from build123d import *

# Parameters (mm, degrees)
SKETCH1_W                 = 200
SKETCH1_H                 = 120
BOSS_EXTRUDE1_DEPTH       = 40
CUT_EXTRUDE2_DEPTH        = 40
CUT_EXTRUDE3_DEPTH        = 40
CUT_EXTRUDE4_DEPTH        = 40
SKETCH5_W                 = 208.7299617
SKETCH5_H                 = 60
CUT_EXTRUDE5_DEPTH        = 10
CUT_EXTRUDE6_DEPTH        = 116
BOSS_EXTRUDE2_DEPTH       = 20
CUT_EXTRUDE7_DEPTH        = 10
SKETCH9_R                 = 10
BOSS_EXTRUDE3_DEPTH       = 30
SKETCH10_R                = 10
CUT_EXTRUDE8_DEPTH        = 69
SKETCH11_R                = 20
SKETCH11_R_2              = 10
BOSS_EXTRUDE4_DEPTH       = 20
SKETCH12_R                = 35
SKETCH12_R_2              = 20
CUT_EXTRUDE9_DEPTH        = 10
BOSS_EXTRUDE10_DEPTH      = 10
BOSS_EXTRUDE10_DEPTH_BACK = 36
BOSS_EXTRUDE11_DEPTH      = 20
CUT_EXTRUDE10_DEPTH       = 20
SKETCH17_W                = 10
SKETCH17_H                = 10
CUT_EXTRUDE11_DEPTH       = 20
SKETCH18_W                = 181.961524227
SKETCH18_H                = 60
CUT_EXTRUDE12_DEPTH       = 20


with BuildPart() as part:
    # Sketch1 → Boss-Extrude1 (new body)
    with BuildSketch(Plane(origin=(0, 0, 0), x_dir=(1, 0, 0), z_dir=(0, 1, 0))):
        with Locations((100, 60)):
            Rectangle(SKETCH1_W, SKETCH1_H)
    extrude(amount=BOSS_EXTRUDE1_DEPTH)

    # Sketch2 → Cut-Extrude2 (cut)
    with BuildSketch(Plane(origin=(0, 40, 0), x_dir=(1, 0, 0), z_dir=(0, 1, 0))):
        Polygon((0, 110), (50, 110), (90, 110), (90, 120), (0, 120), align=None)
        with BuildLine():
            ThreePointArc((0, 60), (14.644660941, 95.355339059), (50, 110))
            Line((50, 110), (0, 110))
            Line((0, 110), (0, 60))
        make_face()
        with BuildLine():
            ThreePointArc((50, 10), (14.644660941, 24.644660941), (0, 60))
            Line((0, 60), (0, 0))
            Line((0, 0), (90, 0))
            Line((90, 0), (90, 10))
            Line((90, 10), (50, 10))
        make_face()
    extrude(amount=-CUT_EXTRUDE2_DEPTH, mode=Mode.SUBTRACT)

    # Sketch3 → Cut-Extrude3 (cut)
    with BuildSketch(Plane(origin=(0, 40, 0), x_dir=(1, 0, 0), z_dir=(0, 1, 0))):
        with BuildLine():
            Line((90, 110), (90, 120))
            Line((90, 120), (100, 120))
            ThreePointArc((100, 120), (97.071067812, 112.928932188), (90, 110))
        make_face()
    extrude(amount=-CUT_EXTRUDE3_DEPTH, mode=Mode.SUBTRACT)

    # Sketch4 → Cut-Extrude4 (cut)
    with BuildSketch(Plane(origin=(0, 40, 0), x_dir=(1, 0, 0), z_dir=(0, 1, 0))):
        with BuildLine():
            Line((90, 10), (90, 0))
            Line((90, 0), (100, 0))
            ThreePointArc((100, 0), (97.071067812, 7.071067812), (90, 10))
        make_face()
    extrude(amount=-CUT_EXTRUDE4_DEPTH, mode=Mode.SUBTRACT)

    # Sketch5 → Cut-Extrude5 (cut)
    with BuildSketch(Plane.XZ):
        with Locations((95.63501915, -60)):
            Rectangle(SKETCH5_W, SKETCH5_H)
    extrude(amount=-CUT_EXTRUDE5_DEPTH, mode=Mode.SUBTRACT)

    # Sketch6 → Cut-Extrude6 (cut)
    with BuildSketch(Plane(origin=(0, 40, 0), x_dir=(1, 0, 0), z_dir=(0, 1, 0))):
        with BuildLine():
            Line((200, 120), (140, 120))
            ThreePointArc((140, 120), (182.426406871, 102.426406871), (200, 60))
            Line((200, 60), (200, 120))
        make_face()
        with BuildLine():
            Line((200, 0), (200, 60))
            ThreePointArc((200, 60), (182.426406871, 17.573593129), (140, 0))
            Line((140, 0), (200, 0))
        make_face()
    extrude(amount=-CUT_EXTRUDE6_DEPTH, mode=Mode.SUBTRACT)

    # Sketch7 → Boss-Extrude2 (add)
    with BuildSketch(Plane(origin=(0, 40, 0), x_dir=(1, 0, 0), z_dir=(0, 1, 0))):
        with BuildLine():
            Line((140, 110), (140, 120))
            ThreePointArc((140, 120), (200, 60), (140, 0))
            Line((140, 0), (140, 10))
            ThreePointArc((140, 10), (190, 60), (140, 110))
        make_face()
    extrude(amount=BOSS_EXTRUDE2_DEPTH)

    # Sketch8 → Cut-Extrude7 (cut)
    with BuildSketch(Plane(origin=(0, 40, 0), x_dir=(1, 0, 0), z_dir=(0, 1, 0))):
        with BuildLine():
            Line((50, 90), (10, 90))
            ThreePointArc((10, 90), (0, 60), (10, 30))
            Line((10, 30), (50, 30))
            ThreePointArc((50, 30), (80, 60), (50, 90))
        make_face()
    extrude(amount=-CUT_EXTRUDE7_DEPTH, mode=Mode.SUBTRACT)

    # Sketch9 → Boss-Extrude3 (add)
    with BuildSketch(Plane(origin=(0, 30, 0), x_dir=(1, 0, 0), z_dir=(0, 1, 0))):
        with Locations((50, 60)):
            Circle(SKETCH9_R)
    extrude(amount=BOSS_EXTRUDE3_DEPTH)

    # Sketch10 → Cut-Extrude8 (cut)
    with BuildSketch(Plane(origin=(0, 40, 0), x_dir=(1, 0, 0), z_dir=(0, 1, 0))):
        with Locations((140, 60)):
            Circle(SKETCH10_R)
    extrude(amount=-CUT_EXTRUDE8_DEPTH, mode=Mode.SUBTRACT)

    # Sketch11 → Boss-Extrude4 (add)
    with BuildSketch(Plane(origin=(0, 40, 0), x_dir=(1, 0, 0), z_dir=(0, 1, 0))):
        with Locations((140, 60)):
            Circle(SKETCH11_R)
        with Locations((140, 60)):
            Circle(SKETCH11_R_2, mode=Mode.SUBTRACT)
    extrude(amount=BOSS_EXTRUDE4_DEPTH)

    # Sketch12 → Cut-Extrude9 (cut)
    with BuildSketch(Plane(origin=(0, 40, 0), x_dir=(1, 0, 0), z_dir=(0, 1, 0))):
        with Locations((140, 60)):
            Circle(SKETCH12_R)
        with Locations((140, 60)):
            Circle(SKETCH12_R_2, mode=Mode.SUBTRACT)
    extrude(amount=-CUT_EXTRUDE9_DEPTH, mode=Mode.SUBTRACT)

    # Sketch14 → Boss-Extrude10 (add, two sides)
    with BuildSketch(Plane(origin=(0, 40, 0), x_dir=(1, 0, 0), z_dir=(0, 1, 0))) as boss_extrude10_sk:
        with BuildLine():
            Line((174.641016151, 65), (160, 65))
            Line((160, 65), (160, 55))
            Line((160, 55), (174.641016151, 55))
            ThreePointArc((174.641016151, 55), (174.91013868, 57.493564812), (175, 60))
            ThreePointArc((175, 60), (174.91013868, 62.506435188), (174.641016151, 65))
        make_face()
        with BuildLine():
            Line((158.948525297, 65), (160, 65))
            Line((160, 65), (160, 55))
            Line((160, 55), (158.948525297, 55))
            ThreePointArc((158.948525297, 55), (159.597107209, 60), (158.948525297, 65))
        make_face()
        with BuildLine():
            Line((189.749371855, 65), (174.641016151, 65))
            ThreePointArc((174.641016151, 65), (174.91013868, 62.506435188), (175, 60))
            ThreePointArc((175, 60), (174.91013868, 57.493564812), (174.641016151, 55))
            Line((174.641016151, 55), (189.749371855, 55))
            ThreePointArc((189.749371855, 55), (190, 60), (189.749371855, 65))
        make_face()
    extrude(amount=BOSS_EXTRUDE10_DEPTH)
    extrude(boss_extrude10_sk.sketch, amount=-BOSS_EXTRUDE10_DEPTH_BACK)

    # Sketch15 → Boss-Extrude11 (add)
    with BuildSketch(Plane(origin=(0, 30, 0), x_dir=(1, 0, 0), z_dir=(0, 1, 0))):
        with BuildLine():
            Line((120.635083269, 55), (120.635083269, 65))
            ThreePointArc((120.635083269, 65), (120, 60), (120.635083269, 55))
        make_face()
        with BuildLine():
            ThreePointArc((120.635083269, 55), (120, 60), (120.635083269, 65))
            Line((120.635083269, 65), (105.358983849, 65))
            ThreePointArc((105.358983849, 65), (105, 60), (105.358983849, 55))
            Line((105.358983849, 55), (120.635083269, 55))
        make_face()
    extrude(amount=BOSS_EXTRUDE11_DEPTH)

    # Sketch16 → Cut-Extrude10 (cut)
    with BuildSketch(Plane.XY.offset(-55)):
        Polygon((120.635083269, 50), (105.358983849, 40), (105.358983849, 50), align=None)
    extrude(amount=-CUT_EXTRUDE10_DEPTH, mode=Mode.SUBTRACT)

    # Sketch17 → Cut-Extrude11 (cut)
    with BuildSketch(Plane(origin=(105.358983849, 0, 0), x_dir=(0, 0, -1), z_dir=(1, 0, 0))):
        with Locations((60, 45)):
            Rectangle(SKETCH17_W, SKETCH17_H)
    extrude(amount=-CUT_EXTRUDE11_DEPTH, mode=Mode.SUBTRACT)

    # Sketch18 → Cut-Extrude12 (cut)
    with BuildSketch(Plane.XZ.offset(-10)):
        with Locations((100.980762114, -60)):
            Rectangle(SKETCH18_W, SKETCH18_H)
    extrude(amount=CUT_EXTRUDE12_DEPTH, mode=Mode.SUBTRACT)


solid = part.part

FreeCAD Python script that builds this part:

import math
import FreeCAD as App
import Part
import Sketcher

V = App.Vector
Q = App.Units.Quantity

doc = App.newDocument("Part")
body = doc.addObject("PartDesign::Body", "Body")

# Sketch on XZ plane
sketch1 = body.newObject("Sketcher::SketchObject", "Sketch")
sketch1.AttachmentSupport = (doc.getObject("XZ_Plane"), [""])
sketch1.MapMode = "FlatFace"
sketch1.addGeometry([
    Part.LineSegment(V(0, -120, 0), V(0, 0, 0)),
    Part.LineSegment(V(0, 0, 0), V(200, 0, 0)),
    Part.LineSegment(V(200, 0, 0), V(200, -120, 0)),
    Part.LineSegment(V(200, -120, 0), V(0, -120, 0)),
], False)
sketch1.addConstraint([
    Sketcher.Constraint("Coincident", 0, 2, 1, 1),
    Sketcher.Constraint("Coincident", 1, 2, 2, 1),
    Sketcher.Constraint("Coincident", 2, 2, 3, 1),
    Sketcher.Constraint("Coincident", 3, 2, 0, 1),
    Sketcher.Constraint("Vertical", 0),
    Sketcher.Constraint("Horizontal", 1),
    Sketcher.Constraint("Vertical", 2),
    Sketcher.Constraint("Horizontal", 3),
    Sketcher.Constraint("Coincident", 0, 2, -1, 1),
    Sketcher.Constraint("DistanceX", 1, 1, 1, 2, Q("200 mm")),
    Sketcher.Constraint("DistanceY", 0, 1, 0, 2, Q("120 mm")),
])
pad1 = body.newObject("PartDesign::Pad", "Pad")
pad1.Profile = sketch1
pad1.Length = 40
pad1.Reversed = True

# Sketch on XZ plane
sketch2 = body.newObject("Sketcher::SketchObject", "Sketch001")
sketch2.AttachmentSupport = (doc.getObject("XZ_Plane"), [""])
sketch2.MapMode = "FlatFace"
sketch2.AttachmentOffset = App.Placement(V(0, 0, -40), App.Rotation())
sketch2.addGeometry([
    Part.LineSegment(V(50, -110, 0), V(90, -110, 0)),  # 0
    Part.LineSegment(V(90, -110, 0), V(90, -120, 0)),  # 1
    Part.LineSegment(V(90, -120, 0), V(0, -120, 0)),  # 2
    Part.LineSegment(V(0, -120, 0), V(0, -60, 0)),  # 3
    Part.ArcOfCircle(Part.Circle(V(50, -60, 0), V(0, 0, 1), 50), math.radians(-180), math.radians(-90)),  # 4
    Part.ArcOfCircle(Part.Circle(V(50, -60, 0), V(0, 0, 1), 50), math.radians(90), math.radians(180)),  # 5
    Part.LineSegment(V(0, -60, 0), V(0, 0, 0)),  # 6
    Part.LineSegment(V(0, 0, 0), V(90, 0, 0)),  # 7
    Part.LineSegment(V(90, 0, 0), V(90, -10, 0)),  # 8
    Part.LineSegment(V(90, -10, 0), V(50, -10, 0)),  # 9
], False)
sketch2.addConstraint([
    Sketcher.Constraint("Coincident", 0, 2, 1, 1),
    Sketcher.Constraint("Coincident", 1, 2, 2, 1),
    Sketcher.Constraint("Coincident", 2, 2, 3, 1),
    Sketcher.Constraint("Tangent", 3, 2, 4, 1),
    Sketcher.Constraint("Tangent", 4, 2, 0, 1),
    Sketcher.Constraint("Tangent", 5, 2, 6, 1),
    Sketcher.Constraint("Coincident", 6, 2, 7, 1),
    Sketcher.Constraint("Coincident", 7, 2, 8, 1),
    Sketcher.Constraint("Coincident", 8, 2, 9, 1),
    Sketcher.Constraint("Tangent", 9, 2, 5, 1),
    Sketcher.Constraint("Horizontal", 0),
    Sketcher.Constraint("Vertical", 1),
    Sketcher.Constraint("Horizontal", 2),
    Sketcher.Constraint("Vertical", 3),
    Sketcher.Constraint("Vertical", 6),
    Sketcher.Constraint("Horizontal", 7),
    Sketcher.Constraint("Vertical", 8),
    Sketcher.Constraint("Horizontal", 9),
    Sketcher.Constraint("Coincident", 6, 2, -1, 1),
    Sketcher.Constraint("Coincident", 5, 3, 4, 3),
    Sketcher.Constraint("Equal", 4, 5),
    Sketcher.Constraint("Vertical", 1, 2, 7, 2),
    Sketcher.Constraint("Equal", 3, 6),
    Sketcher.Constraint("Radius", 4, Q("50 mm")),
    Sketcher.Constraint("DistanceX", 0, 1, 0, 2, Q("40 mm")),
    Sketcher.Constraint("DistanceY", 1, 2, 1, 1, Q("10 mm")),
])
pocket1 = body.newObject("PartDesign::Pocket", "Pocket")
pocket1.Profile = sketch2
pocket1.Length = 40
pocket1.Reversed = True

# Sketch on XZ plane
sketch3 = body.newObject("Sketcher::SketchObject", "Sketch002")
sketch3.AttachmentSupport = (doc.getObject("XZ_Plane"), [""])
sketch3.MapMode = "FlatFace"
sketch3.AttachmentOffset = App.Placement(V(0, 0, -40), App.Rotation())
sketch3.addGeometry([
    Part.LineSegment(V(90, -120, 0), V(90, -110, 0)),
    Part.ArcOfCircle(Part.Circle(V(90, -120, 0), V(0, 0, 1), 10), math.radians(0), math.radians(90)),
    Part.LineSegment(V(100, -120, 0), V(90, -120, 0)),
], False)
sketch3.addConstraint([
    Sketcher.Constraint("Coincident", 0, 2, 1, 2),
    Sketcher.Constraint("Coincident", 1, 1, 2, 1),
    Sketcher.Constraint("Coincident", 2, 2, 0, 1),
    Sketcher.Constraint("Vertical", 0),
    Sketcher.Constraint("Horizontal", 2),
    Sketcher.Constraint("Coincident", 2, 2, 1, 3),
    Sketcher.Constraint("Radius", 1, Q("10 mm")),
    Sketcher.Constraint("DistanceX", -1, 1, 1, 3, Q("90 mm")),
    Sketcher.Constraint("DistanceY", 1, 3, -1, 1, Q("120 mm")),
])
pocket2 = body.newObject("PartDesign::Pocket", "Pocket001")
pocket2.Profile = sketch3
pocket2.Length = 40
pocket2.Reversed = True

# Sketch on XZ plane
sketch4 = body.newObject("Sketcher::SketchObject", "Sketch003")
sketch4.AttachmentSupport = (doc.getObject("XZ_Plane"), [""])
sketch4.MapMode = "FlatFace"
sketch4.AttachmentOffset = App.Placement(V(0, 0, -40), App.Rotation())
sketch4.addGeometry([
    Part.LineSegment(V(90, -10, 0), V(90, 0, 0)),
    Part.LineSegment(V(90, 0, 0), V(100, 0, 0)),
    Part.ArcOfCircle(Part.Circle(V(90, 0, 0), V(0, 0, 1), 10), math.radians(-90), math.radians(0)),
], False)
sketch4.addConstraint([
    Sketcher.Constraint("Coincident", 0, 2, 1, 1),
    Sketcher.Constraint("Coincident", 1, 2, 2, 2),
    Sketcher.Constraint("Coincident", 2, 1, 0, 1),
    Sketcher.Constraint("Vertical", 0),
    Sketcher.Constraint("Horizontal", 1),
    Sketcher.Constraint("Coincident", 0, 2, 2, 3),
    Sketcher.Constraint("PointOnObject", 2, 3, -1),
    Sketcher.Constraint("Radius", 2, Q("10 mm")),
    Sketcher.Constraint("DistanceX", -1, 1, 2, 3, Q("90 mm")),
])
pocket3 = body.newObject("PartDesign::Pocket", "Pocket002")
pocket3.Profile = sketch4
pocket3.Length = 40
pocket3.Reversed = True

# Sketch on XZ plane
sketch5 = body.newObject("Sketcher::SketchObject", "Sketch004")
sketch5.AttachmentSupport = (doc.getObject("XZ_Plane"), [""])
sketch5.MapMode = "FlatFace"
sketch5.addGeometry([
    Part.LineSegment(V(-9, -30, 0), V(-9, -90, 0)),
    Part.LineSegment(V(-9, -90, 0), V(200, -90, 0)),
    Part.LineSegment(V(200, -90, 0), V(200, -30, 0)),
    Part.LineSegment(V(200, -30, 0), V(-9, -30, 0)),
], False)
sketch5.addConstraint([
    Sketcher.Constraint("Coincident", 0, 2, 1, 1),
    Sketcher.Constraint("Coincident", 1, 2, 2, 1),
    Sketcher.Constraint("Coincident", 2, 2, 3, 1),
    Sketcher.Constraint("Coincident", 3, 2, 0, 1),
    Sketcher.Constraint("Vertical", 0),
    Sketcher.Constraint("Horizontal", 1),
    Sketcher.Constraint("Vertical", 2),
    Sketcher.Constraint("Horizontal", 3),
    Sketcher.Constraint("DistanceY", 0, 2, 0, 1, Q("60 mm")),
    Sketcher.Constraint("DistanceY", 0, 2, -1, 1, Q("90 mm")),
    Sketcher.Constraint("DistanceX", -1, 1, 1, 2, Q("200 mm")),
    Sketcher.Constraint("DistanceX", 1, 1, 1, 2, Q("208.729962 mm")),
])
pocket4 = body.newObject("PartDesign::Pocket", "Pocket003")
pocket4.Profile = sketch5
pocket4.Length = 10

# Sketch on XZ plane
sketch6 = body.newObject("Sketcher::SketchObject", "Sketch005")
sketch6.AttachmentSupport = (doc.getObject("XZ_Plane"), [""])
sketch6.MapMode = "FlatFace"
sketch6.AttachmentOffset = App.Placement(V(0, 0, -40), App.Rotation())
sketch6.addGeometry([
    Part.LineSegment(V(200, -120, 0), V(140, -120, 0)),  # 0
    Part.ArcOfCircle(Part.Circle(V(140, -60, 0), V(0, 0, 1), 60), math.radians(-90), math.radians(0)),  # 1
    Part.LineSegment(V(200, -60, 0), V(200, -120, 0)),  # 2
    Part.LineSegment(V(200, 0, 0), V(200, -60, 0)),  # 3
    Part.ArcOfCircle(Part.Circle(V(140, -60, 0), V(0, 0, 1), 60), math.radians(0), math.radians(90)),  # 4
    Part.LineSegment(V(140, 0, 0), V(200, 0, 0)),  # 5
], False)
sketch6.addConstraint([
    Sketcher.Constraint("Tangent", 0, 2, 1, 1),
    Sketcher.Constraint("Tangent", 1, 2, 2, 1),
    Sketcher.Constraint("Coincident", 2, 2, 0, 1),
    Sketcher.Constraint("Tangent", 3, 2, 4, 1),
    Sketcher.Constraint("Tangent", 4, 2, 5, 1),
    Sketcher.Constraint("Coincident", 5, 2, 3, 1),
    Sketcher.Constraint("Horizontal", 0),
    Sketcher.Constraint("Vertical", 2),
    Sketcher.Constraint("Vertical", 3),
    Sketcher.Constraint("Horizontal", 5),
    Sketcher.Constraint("Coincident", 4, 3, 1, 3),
    Sketcher.Constraint("Equal", 1, 4),
    Sketcher.Constraint("PointOnObject", 4, 2, -1),
    Sketcher.Constraint("Radius", 1, Q("60 mm")),
    Sketcher.Constraint("DistanceX", -1, 1, 1, 3, Q("140 mm")),
])
pocket5 = body.newObject("PartDesign::Pocket", "Pocket004")
pocket5.Profile = sketch6
pocket5.Length = 116
pocket5.Reversed = True

# Sketch on XZ plane
sketch7 = body.newObject("Sketcher::SketchObject", "Sketch006")
sketch7.AttachmentSupport = (doc.getObject("XZ_Plane"), [""])
sketch7.MapMode = "FlatFace"
sketch7.AttachmentOffset = App.Placement(V(0, 0, -40), App.Rotation())
sketch7.addGeometry([
    Part.LineSegment(V(140, -120, 0), V(140, -110, 0)),
    Part.ArcOfCircle(Part.Circle(V(140, -60, 0), V(0, 0, 1), 50), math.radians(-90), math.radians(90)),
    Part.LineSegment(V(140, -10, 0), V(140, 0, 0)),
    Part.ArcOfCircle(Part.Circle(V(140, -60, 0), V(0, 0, 1), 60), math.radians(-90), math.radians(90)),
], False)
sketch7.addConstraint([
    Sketcher.Constraint("Coincident", 0, 2, 1, 1),
    Sketcher.Constraint("Coincident", 1, 2, 2, 1),
    Sketcher.Constraint("Coincident", 2, 2, 3, 2),
    Sketcher.Constraint("Coincident", 3, 1, 0, 1),
    Sketcher.Constraint("Vertical", 0),
    Sketcher.Constraint("Vertical", 2),
    Sketcher.Constraint("Coincident", 3, 3, 1, 3),
    Sketcher.Constraint("PointOnObject", 2, 2, -1),
    Sketcher.Constraint("Vertical", 3, 3, 0, 2),
    Sketcher.Constraint("Vertical", 0, 2, 1, 2),
    Sketcher.Constraint("Radius", 1, Q("50 mm")),
    Sketcher.Constraint("Radius", 3, Q("60 mm")),
    Sketcher.Constraint("DistanceX", -1, 1, 1, 3, Q("140 mm")),
])
pad2 = body.newObject("PartDesign::Pad", "Pad001")
pad2.Profile = sketch7
pad2.Length = 20
pad2.Reversed = True

# Sketch on XZ plane
sketch8 = body.newObject("Sketcher::SketchObject", "Sketch007")
sketch8.AttachmentSupport = (doc.getObject("XZ_Plane"), [""])
sketch8.MapMode = "FlatFace"
sketch8.AttachmentOffset = App.Placement(V(0, 0, -40), App.Rotation())
sketch8.addGeometry([
    Part.LineSegment(V(50, -90, 0), V(10, -90, 0)),
    Part.ArcOfCircle(Part.Circle(V(50, -60, 0), V(0, 0, 1), 50), math.radians(143), math.radians(217)),
    Part.LineSegment(V(10, -30, 0), V(50, -30, 0)),
    Part.ArcOfCircle(Part.Circle(V(50, -60, 0), V(0, 0, 1), 30), math.radians(-90), math.radians(90)),
], False)
sketch8.addConstraint([
    Sketcher.Constraint("Coincident", 0, 2, 1, 2),
    Sketcher.Constraint("Coincident", 1, 1, 2, 1),
    Sketcher.Constraint("Tangent", 2, 2, 3, 2),
    Sketcher.Constraint("Tangent", 3, 1, 0, 1),
    Sketcher.Constraint("Horizontal", 0),
    Sketcher.Constraint("Horizontal", 2),
    Sketcher.Constraint("Coincident", 3, 3, 1, 3),
    Sketcher.Constraint("Radius", 1, Q("50 mm")),
    Sketcher.Constraint("Radius", 3, Q("30 mm")),
    Sketcher.Constraint("DistanceX", -1, 1, 1, 3, Q("50 mm")),
    Sketcher.Constraint("DistanceY", 1, 3, -1, 1, Q("60 mm")),
])
pocket6 = body.newObject("PartDesign::Pocket", "Pocket005")
pocket6.Profile = sketch8
pocket6.Length = 10
pocket6.Reversed = True

# Sketch on XZ plane
sketch9 = body.newObject("Sketcher::SketchObject", "Sketch008")
sketch9.AttachmentSupport = (doc.getObject("XZ_Plane"), [""])
sketch9.MapMode = "FlatFace"
sketch9.AttachmentOffset = App.Placement(V(0, 0, -30), App.Rotation())
sketch9.addGeometry(Part.Circle(V(50, -60, 0), V(0, 0, 1), 10), False)
sketch9.addConstraint([
    Sketcher.Constraint("Diameter", 0, Q("20 mm")),
    Sketcher.Constraint("DistanceX", -1, 1, 0, 3, Q("50 mm")),
    Sketcher.Constraint("DistanceY", 0, 3, -1, 1, Q("60 mm")),
])
pad3 = body.newObject("PartDesign::Pad", "Pad002")
pad3.Profile = sketch9
pad3.Length = 30
pad3.Reversed = True

# Sketch on XZ plane
sketch10 = body.newObject("Sketcher::SketchObject", "Sketch009")
sketch10.AttachmentSupport = (doc.getObject("XZ_Plane"), [""])
sketch10.MapMode = "FlatFace"
sketch10.AttachmentOffset = App.Placement(V(0, 0, -40), App.Rotation())
sketch10.addGeometry(Part.Circle(V(140, -60, 0), V(0, 0, 1), 10), False)
sketch10.addConstraint([
    Sketcher.Constraint("Diameter", 0, Q("20 mm")),
    Sketcher.Constraint("DistanceX", -1, 1, 0, 3, Q("140 mm")),
    Sketcher.Constraint("DistanceY", 0, 3, -1, 1, Q("60 mm")),
])
pocket7 = body.newObject("PartDesign::Pocket", "Pocket006")
pocket7.Profile = sketch10
pocket7.Length = 69
pocket7.Reversed = True

# Sketch on XZ plane
sketch11 = body.newObject("Sketcher::SketchObject", "Sketch010")
sketch11.AttachmentSupport = (doc.getObject("XZ_Plane"), [""])
sketch11.MapMode = "FlatFace"
sketch11.AttachmentOffset = App.Placement(V(0, 0, -40), App.Rotation())
sketch11.addGeometry([
    Part.Circle(V(140, -60, 0), V(0, 0, 1), 20),
    Part.Circle(V(140, -60, 0), V(0, 0, 1), 10),
], False)
sketch11.addConstraint([
    Sketcher.Constraint("Coincident", 1, 3, 0, 3),
    Sketcher.Constraint("Diameter", 0, Q("40 mm")),
    Sketcher.Constraint("Diameter", 1, Q("20 mm")),
    Sketcher.Constraint("DistanceX", -1, 1, 0, 3, Q("140 mm")),
    Sketcher.Constraint("DistanceY", 0, 3, -1, 1, Q("60 mm")),
])
pad4 = body.newObject("PartDesign::Pad", "Pad003")
pad4.Profile = sketch11
pad4.Length = 20
pad4.Reversed = True

# Sketch on XZ plane
sketch12 = body.newObject("Sketcher::SketchObject", "Sketch011")
sketch12.AttachmentSupport = (doc.getObject("XZ_Plane"), [""])
sketch12.MapMode = "FlatFace"
sketch12.AttachmentOffset = App.Placement(V(0, 0, -40), App.Rotation())
sketch12.addGeometry([
    Part.Circle(V(140, -60, 0), V(0, 0, 1), 35),
    Part.Circle(V(140, -60, 0), V(0, 0, 1), 20),
], False)
sketch12.addConstraint([
    Sketcher.Constraint("Coincident", 1, 3, 0, 3),
    Sketcher.Constraint("Diameter", 0, Q("70 mm")),
    Sketcher.Constraint("Diameter", 1, Q("40 mm")),
    Sketcher.Constraint("DistanceX", -1, 1, 0, 3, Q("140 mm")),
    Sketcher.Constraint("DistanceY", 0, 3, -1, 1, Q("60 mm")),
])
pocket8 = body.newObject("PartDesign::Pocket", "Pocket007")
pocket8.Profile = sketch12
pocket8.Length = 10
pocket8.Reversed = True

# Sketch on XZ plane
sketch13 = body.newObject("Sketcher::SketchObject", "Sketch012")
sketch13.AttachmentSupport = (doc.getObject("XZ_Plane"), [""])
sketch13.MapMode = "FlatFace"
sketch13.AttachmentOffset = App.Placement(V(0, 0, -40), App.Rotation())
sketch13.addGeometry([
    Part.ArcOfCircle(Part.Circle(V(140, -60, 0), V(0, 0, 1), 20), math.radians(-15), math.radians(15)),
    Part.LineSegment(V(159, -55, 0), V(190, -55, 0)),
    Part.ArcOfCircle(Part.Circle(V(140, -60, 0), V(0, 0, 1), 50), math.radians(-5.74), math.radians(5.74)),
    Part.LineSegment(V(190, -65, 0), V(159, -65, 0)),
], False)
sketch13.addConstraint([
    Sketcher.Constraint("Coincident", 0, 2, 1, 1),
    Sketcher.Constraint("Coincident", 1, 2, 2, 2),
    Sketcher.Constraint("Coincident", 2, 1, 3, 1),
    Sketcher.Constraint("Coincident", 3, 2, 0, 1),
    Sketcher.Constraint("Horizontal", 1),
    Sketcher.Constraint("Horizontal", 3),
    Sketcher.Constraint("Coincident", 2, 3, 0, 3),
    Sketcher.Constraint("Vertical", 1, 2, 2, 1),
    Sketcher.Constraint("Radius", 2, Q("50 mm")),
    Sketcher.Constraint("DistanceX", -1, 1, 0, 3, Q("140 mm")),
    Sketcher.Constraint("DistanceY", 0, 3, -1, 1, Q("60 mm")),
    Sketcher.Constraint("DistanceY", 0, 2, -1, 1, Q("55 mm")),
    Sketcher.Constraint("Radius", 0, Q("19.597107 mm")),
])
pad5 = body.newObject("PartDesign::Pad", "Pad004")
pad5.Profile = sketch13
pad5.Type = "TwoLengths"
pad5.Length = 10
pad5.Length2 = 36
pad5.Reversed = True

# Sketch on XZ plane
sketch14 = body.newObject("Sketcher::SketchObject", "Sketch013")
sketch14.AttachmentSupport = (doc.getObject("XZ_Plane"), [""])
sketch14.MapMode = "FlatFace"
sketch14.AttachmentOffset = App.Placement(V(0, 0, -30), App.Rotation())
sketch14.addGeometry([
    Part.LineSegment(V(121, -55, 0), V(121, -65, 0)),
    Part.LineSegment(V(121, -65, 0), V(105, -65, 0)),
    Part.ArcOfCircle(Part.Circle(V(140, -60, 0), V(0, 0, 1), 35), math.radians(171.79), math.radians(188.21)),
    Part.LineSegment(V(105, -55, 0), V(121, -55, 0)),
], False)
sketch14.addConstraint([
    Sketcher.Constraint("Coincident", 0, 2, 1, 1),
    Sketcher.Constraint("Coincident", 1, 2, 2, 2),
    Sketcher.Constraint("Coincident", 2, 1, 3, 1),
    Sketcher.Constraint("Coincident", 3, 2, 0, 1),
    Sketcher.Constraint("Vertical", 0),
    Sketcher.Constraint("Horizontal", 1),
    Sketcher.Constraint("Horizontal", 3),
    Sketcher.Constraint("Vertical", 1, 2, 2, 1),
    Sketcher.Constraint("Radius", 2, Q("35 mm")),
    Sketcher.Constraint("DistanceY", 0, 2, 0, 1, Q("10 mm")),
    Sketcher.Constraint("DistanceX", -1, 1, 2, 3, Q("140 mm")),
    Sketcher.Constraint("DistanceY", 2, 3, -1, 1, Q("60 mm")),
    Sketcher.Constraint("DistanceX", 1, 2, 1, 1, Q("15.276099 mm")),
])
pad6 = body.newObject("PartDesign::Pad", "Pad005")
pad6.Profile = sketch14
pad6.Length = 20
pad6.Reversed = True

# Sketch on XY plane
sketch15 = body.newObject("Sketcher::SketchObject", "Sketch014")
sketch15.AttachmentSupport = (doc.getObject("XY_Plane"), [""])
sketch15.MapMode = "FlatFace"
sketch15.AttachmentOffset = App.Placement(V(0, 0, -55), App.Rotation())
sketch15.addGeometry([
    Part.LineSegment(V(105, 40, 0), V(121, 50, 0)),
    Part.LineSegment(V(121, 50, 0), V(105, 50, 0)),
    Part.LineSegment(V(105, 50, 0), V(105, 40, 0)),
], False)
sketch15.addConstraint([
    Sketcher.Constraint("Coincident", 0, 2, 1, 1),
    Sketcher.Constraint("Coincident", 1, 2, 2, 1),
    Sketcher.Constraint("Coincident", 2, 2, 0, 1),
    Sketcher.Constraint("Horizontal", 1),
    Sketcher.Constraint("Vertical", 2),
    Sketcher.Constraint("DistanceY", 2, 2, 2, 1, Q("10 mm")),
    Sketcher.Constraint("DistanceY", -1, 1, 0, 2, Q("50 mm")),
    Sketcher.Constraint("DistanceX", 1, 2, 1, 1, Q("15.276099 mm")),
    Sketcher.Constraint("DistanceX", -1, 1, 0, 2, Q("120.635083 mm")),
])
pocket9 = body.newObject("PartDesign::Pocket", "Pocket008")
pocket9.Profile = sketch15
pocket9.Length = 20

# Sketch on YZ plane
sketch16 = body.newObject("Sketcher::SketchObject", "Sketch015")
sketch16.AttachmentSupport = (doc.getObject("YZ_Plane"), [""])
sketch16.MapMode = "FlatFace"
sketch16.AttachmentOffset = App.Placement(V(0, 0, 105.358984), App.Rotation())
sketch16.addGeometry([
    Part.LineSegment(V(50, -55, 0), V(40, -55, 0)),
    Part.LineSegment(V(40, -55, 0), V(40, -65, 0)),
    Part.LineSegment(V(40, -65, 0), V(50, -65, 0)),
    Part.LineSegment(V(50, -65, 0), V(50, -55, 0)),
], False)
sketch16.addConstraint([
    Sketcher.Constraint("Coincident", 0, 2, 1, 1),
    Sketcher.Constraint("Coincident", 1, 2, 2, 1),
    Sketcher.Constraint("Coincident", 2, 2, 3, 1),
    Sketcher.Constraint("Coincident", 3, 2, 0, 1),
    Sketcher.Constraint("Horizontal", 0),
    Sketcher.Constraint("Vertical", 1),
    Sketcher.Constraint("Horizontal", 2),
    Sketcher.Constraint("Vertical", 3),
    Sketcher.Constraint("Equal", 2, 1),
    Sketcher.Constraint("DistanceX", 0, 2, 0, 1, Q("10 mm")),
    Sketcher.Constraint("DistanceX", -1, 1, 0, 2, Q("40 mm")),
    Sketcher.Constraint("DistanceY", 0, 2, -1, 1, Q("55 mm")),
])
pocket10 = body.newObject("PartDesign::Pocket", "Pocket009")
pocket10.Profile = sketch16
pocket10.Length = 20

# Sketch on XZ plane
sketch17 = body.newObject("Sketcher::SketchObject", "Sketch016")
sketch17.AttachmentSupport = (doc.getObject("XZ_Plane"), [""])
sketch17.MapMode = "FlatFace"
sketch17.AttachmentOffset = App.Placement(V(0, 0, -10), App.Rotation())
sketch17.addGeometry([
    Part.LineSegment(V(10, -30, 0), V(10, -90, 0)),
    Part.LineSegment(V(10, -90, 0), V(192, -90, 0)),
    Part.LineSegment(V(192, -90, 0), V(192, -30, 0)),
    Part.LineSegment(V(192, -30, 0), V(10, -30, 0)),
], False)
sketch17.addConstraint([
    Sketcher.Constraint("Coincident", 0, 2, 1, 1),
    Sketcher.Constraint("Coincident", 1, 2, 2, 1),
    Sketcher.Constraint("Coincident", 2, 2, 3, 1),
    Sketcher.Constraint("Coincident", 3, 2, 0, 1),
    Sketcher.Constraint("Vertical", 0),
    Sketcher.Constraint("Horizontal", 1),
    Sketcher.Constraint("Vertical", 2),
    Sketcher.Constraint("Horizontal", 3),
    Sketcher.Constraint("DistanceY", 0, 2, 0, 1, Q("60 mm")),
    Sketcher.Constraint("DistanceX", -1, 1, 0, 2, Q("10 mm")),
    Sketcher.Constraint("DistanceY", 0, 2, -1, 1, Q("90 mm")),
    Sketcher.Constraint("DistanceX", 1, 1, 1, 2, Q("181.961524 mm")),
])
pocket11 = body.newObject("PartDesign::Pocket", "Pocket010")
pocket11.Profile = sketch17
pocket11.Length = 20
pocket11.Reversed = True

doc.recompute()
